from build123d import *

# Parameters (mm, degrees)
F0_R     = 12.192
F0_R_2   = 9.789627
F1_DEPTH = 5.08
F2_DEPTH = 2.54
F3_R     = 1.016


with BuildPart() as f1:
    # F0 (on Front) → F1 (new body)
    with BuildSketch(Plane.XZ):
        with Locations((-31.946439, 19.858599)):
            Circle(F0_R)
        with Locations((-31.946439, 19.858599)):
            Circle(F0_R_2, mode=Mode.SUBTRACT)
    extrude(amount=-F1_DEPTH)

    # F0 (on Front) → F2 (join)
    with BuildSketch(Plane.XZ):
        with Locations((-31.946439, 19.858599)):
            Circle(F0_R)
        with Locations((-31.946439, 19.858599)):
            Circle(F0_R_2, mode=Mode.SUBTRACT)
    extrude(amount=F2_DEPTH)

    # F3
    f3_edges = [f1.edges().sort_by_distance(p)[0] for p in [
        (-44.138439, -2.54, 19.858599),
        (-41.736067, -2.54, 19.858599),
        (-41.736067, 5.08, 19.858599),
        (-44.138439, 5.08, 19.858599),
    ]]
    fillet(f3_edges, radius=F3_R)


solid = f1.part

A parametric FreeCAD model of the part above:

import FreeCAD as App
import Part
import Sketcher

V = App.Vector
Q = App.Units.Quantity


def edges_at(feature, points):
    """Names of the edges that pass closest to the given points."""
    edges = feature.Shape.Edges
    near = lambda p: min(range(len(edges)), key=lambda i: edges[i].distToShape(Part.Vertex(*p))[0])
    return sorted({f"Edge{near(p) + 1}" for p in points})

doc = App.newDocument("Part")
params = doc.addObject("Spreadsheet::Sheet", "Params")
for row, (alias, value) in enumerate([
    ("sketch1_diameter", "0.96 in"),
    ("pad1_length", "0.2 in"),
    ("sketch2_diameter", "0.96 in"),
    ("pad2_length", "0.1 in"),
    ("fillet_radius", "0.04 in"),
], start=1):
    params.set(f"A{row}", alias)
    params.set(f"B{row}", "=" + value)
    params.setAlias(f"B{row}", alias)

body = doc.addObject("PartDesign::Body", "Body")

# Sketch on XZ plane
sketch1 = body.newObject("Sketcher::SketchObject", "Sketch")
sketch1.AttachmentSupport = (doc.getObject("XZ_Plane"), [""])
sketch1.MapMode = "FlatFace"
sketch1.addGeometry([
    Part.Circle(V(-31.946439, 19.858599, 0), V(0, 0, 1), 12.192),
    Part.Circle(V(-31.946439, 19.858599, 0), V(0, 0, 1), 9.789627),
], False)
sketch1.addConstraint([
    Sketcher.Constraint("Coincident", 1, 3, 0, 3),
    Sketcher.Constraint("Diameter", 0, Q("0.96 in")),
    Sketcher.Constraint("Diameter", 1, 19.579254),
    Sketcher.Constraint("DistanceY", -1, 1, 0, 3, 19.858599),
    Sketcher.Constraint("DistanceX", 0, 3, -1, 1, 31.946439),
])
sketch1.setExpression("Constraints[1]", "Params.sketch1_diameter")
pad1 = body.newObject("PartDesign::Pad", "Pad")
pad1.Profile = sketch1
pad1.setExpression("Length", "Params.pad1_length")
pad1.Reversed = True

# Sketch on XZ plane
sketch2 = body.newObject("Sketcher::SketchObject", "Sketch001")
sketch2.AttachmentSupport = (doc.getObject("XZ_Plane"), [""])
sketch2.MapMode = "FlatFace"
sketch2.addGeometry([
    Part.Circle(V(-31.946439, 19.858599, 0), V(0, 0, 1), 12.192),
    Part.Circle(V(-31.946439, 19.858599, 0), V(0, 0, 1), 9.789627),
], False)
sketch2.addConstraint([
    Sketcher.Constraint("Coincident", 1, 3, 0, 3),
    Sketcher.Constraint("Diameter", 0, Q("0.96 in")),
    Sketcher.Constraint("Diameter", 1, 19.579254),
    Sketcher.Constraint("DistanceY", -1, 1, 0, 3, 19.858599),
    Sketcher.Constraint("DistanceX", 0, 3, -1, 1, 31.946439),
])
sketch2.setExpression("Constraints[1]", "Params.sketch2_diameter")
pad2 = body.newObject("PartDesign::Pad", "Pad001")
pad2.Profile = sketch2
pad2.setExpression("Length", "Params.pad2_length")
doc.recompute()

fillet = body.newObject("PartDesign::Fillet", "Fillet")
fillet.Base = (pad2, edges_at(pad2, [
    (-44.138, -2.54, 19.859),
    (-41.736, -2.54, 19.859),
    (-41.736, 5.08, 19.859),
    (-44.138, 5.08, 19.859),
]))
fillet.setExpression("Radius", "Params.fillet_radius")

doc.recompute()
